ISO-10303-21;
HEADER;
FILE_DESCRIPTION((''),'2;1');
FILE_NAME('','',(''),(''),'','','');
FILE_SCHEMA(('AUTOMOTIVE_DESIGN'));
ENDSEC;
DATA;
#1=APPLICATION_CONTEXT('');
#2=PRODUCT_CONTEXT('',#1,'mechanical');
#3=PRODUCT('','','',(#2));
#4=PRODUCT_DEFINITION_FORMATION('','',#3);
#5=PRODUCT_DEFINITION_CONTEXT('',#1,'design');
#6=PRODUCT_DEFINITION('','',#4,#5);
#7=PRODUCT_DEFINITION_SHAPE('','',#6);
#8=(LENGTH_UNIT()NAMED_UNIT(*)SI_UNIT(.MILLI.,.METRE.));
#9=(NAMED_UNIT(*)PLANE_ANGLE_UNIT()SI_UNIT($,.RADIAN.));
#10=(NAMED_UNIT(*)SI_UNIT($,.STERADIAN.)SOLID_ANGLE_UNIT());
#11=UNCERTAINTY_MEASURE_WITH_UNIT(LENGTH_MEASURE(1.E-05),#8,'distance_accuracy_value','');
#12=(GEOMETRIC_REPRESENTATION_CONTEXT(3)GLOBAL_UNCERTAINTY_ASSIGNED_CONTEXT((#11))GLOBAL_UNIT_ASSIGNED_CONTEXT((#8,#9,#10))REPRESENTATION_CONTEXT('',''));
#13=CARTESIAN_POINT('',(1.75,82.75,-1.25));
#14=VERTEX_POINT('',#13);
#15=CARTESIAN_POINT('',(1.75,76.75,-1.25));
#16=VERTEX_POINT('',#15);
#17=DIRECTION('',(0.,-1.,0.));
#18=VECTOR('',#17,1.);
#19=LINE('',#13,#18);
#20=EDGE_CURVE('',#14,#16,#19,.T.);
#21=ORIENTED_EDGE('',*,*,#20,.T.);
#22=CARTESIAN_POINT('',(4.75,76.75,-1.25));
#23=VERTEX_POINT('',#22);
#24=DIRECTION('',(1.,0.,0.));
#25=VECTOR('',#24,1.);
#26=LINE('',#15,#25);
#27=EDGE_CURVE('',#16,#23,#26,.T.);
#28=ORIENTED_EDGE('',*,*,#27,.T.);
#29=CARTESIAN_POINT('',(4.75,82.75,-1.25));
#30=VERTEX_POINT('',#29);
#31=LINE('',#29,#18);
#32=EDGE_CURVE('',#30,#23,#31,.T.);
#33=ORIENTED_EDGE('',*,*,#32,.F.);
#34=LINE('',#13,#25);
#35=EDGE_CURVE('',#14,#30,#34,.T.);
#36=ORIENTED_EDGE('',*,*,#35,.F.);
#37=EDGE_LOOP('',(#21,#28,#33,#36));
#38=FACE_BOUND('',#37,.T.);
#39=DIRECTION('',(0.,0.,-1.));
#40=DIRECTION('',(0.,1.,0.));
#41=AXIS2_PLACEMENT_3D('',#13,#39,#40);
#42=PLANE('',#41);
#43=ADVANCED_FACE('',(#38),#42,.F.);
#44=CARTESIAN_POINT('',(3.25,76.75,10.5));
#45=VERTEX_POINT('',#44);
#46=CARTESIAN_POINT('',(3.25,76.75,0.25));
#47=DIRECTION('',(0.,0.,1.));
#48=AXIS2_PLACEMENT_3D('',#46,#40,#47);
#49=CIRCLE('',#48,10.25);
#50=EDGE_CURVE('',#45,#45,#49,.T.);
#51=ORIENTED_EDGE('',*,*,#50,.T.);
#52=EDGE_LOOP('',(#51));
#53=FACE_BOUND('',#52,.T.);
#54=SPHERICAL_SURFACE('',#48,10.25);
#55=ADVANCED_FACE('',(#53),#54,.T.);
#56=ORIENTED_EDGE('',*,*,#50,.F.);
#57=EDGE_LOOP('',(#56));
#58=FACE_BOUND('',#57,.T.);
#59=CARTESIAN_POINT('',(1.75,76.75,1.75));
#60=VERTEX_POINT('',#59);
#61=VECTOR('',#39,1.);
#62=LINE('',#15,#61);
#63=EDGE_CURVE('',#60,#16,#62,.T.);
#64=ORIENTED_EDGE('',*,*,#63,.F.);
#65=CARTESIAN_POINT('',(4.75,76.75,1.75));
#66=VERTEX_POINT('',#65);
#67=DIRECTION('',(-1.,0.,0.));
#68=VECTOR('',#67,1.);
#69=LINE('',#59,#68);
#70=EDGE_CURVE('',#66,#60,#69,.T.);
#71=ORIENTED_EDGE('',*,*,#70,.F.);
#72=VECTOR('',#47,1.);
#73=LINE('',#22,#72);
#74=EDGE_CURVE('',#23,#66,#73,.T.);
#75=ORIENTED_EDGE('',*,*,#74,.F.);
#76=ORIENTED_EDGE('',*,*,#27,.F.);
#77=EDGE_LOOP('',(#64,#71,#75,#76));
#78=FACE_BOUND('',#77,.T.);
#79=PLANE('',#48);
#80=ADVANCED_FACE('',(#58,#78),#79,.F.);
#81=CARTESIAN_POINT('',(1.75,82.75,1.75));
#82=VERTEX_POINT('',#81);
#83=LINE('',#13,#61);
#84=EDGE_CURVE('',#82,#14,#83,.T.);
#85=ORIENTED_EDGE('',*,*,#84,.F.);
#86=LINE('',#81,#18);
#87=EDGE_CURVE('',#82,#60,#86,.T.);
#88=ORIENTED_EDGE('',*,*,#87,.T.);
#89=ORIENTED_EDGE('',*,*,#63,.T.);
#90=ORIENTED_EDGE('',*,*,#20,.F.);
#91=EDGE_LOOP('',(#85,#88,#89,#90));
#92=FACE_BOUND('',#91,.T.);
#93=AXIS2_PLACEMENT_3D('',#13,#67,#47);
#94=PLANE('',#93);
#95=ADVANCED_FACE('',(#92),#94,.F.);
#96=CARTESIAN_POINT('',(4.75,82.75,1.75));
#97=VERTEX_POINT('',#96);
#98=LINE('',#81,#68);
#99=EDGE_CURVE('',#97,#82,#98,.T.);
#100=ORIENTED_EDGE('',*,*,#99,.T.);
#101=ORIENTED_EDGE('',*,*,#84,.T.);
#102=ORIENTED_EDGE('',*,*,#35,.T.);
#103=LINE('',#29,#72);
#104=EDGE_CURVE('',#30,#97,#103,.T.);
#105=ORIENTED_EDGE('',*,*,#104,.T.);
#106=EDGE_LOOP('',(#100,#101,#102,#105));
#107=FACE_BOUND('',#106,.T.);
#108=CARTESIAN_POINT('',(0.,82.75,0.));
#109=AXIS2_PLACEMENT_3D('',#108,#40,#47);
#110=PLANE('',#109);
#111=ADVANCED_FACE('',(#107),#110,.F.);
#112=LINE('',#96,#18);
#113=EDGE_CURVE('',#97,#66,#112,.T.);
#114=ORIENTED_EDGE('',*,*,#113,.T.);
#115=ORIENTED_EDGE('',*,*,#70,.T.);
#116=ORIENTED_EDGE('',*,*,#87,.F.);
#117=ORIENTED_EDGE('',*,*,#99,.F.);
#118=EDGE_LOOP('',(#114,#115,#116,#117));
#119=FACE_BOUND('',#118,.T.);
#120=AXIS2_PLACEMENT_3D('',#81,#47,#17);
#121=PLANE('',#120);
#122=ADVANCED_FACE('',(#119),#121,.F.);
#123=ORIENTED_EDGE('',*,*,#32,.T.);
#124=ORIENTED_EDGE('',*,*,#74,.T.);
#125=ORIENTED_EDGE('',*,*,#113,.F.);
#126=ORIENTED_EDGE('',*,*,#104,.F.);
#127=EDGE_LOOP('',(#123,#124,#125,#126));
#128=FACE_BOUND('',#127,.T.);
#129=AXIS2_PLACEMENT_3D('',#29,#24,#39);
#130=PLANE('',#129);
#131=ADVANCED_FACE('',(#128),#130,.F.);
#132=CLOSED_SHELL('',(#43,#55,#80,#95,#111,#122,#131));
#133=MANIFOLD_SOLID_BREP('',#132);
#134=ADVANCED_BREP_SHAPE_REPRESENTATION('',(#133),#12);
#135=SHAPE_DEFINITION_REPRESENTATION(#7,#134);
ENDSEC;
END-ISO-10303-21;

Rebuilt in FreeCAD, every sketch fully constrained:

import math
import FreeCAD as App
import Part
import Sketcher
from FreeCAD import Vector
Q = App.Units.Quantity


def add_polygon(sketch, points):
    """Adds a closed chain of lines whose ends are joined by coincident constraints."""
    first, n = sketch.GeometryCount, len(points)
    for a, b in zip(points, points[1:] + points[:1]):
        sketch.addGeometry(Part.LineSegment(App.Vector(*a, 0), App.Vector(*b, 0)), False)
    for i in range(n):
        sketch.addConstraint(Sketcher.Constraint("Coincident", first + i, 2, first + (i + 1) % n, 1))

doc = App.newDocument("Part")
params = doc.addObject("Spreadsheet::Sheet", "Params")
for row, (alias, value) in enumerate([
    ("sketch1_radius", "10.25 mm"),
    ("revolution_angle", "180 deg"),
    ("sketch2_width", "3 mm"),
    ("pocket1_length", "6 mm"),
], start=1):
    params.set(f"A{row}", alias)
    params.set(f"B{row}", "=" + value)
    params.setAlias(f"B{row}", alias)

body = doc.addObject("PartDesign::Body", "Body")

sketch1 = body.newObject("Sketcher::SketchObject", "Sketch")
sketch1.AttachmentSupport = (doc.getObject("XZ_Plane"), [""])
sketch1.MapMode = "FlatFace"
sketch1.AttachmentOffset = App.Placement(Vector(0, 0, -76.75), App.Rotation())
sketch1.addGeometry([
    Part.LineSegment(Vector(-7, 0, 0), Vector(14, 0, 0)),
    Part.ArcOfCircle(Part.Circle(Vector(3, 0, 0), Vector(0, 0, 1), 10), math.radians(0), math.radians(180)),
], False)
sketch1.addGeometry(Part.LineSegment(Vector(14, 0, 0), Vector(-7, 0, 0)), True)
sketch1.addConstraint([
    Sketcher.Constraint("Coincident", 0, 1, 1, 2),
    Sketcher.Constraint("Coincident", 1, 1, 0, 2),
    Sketcher.Constraint("Horizontal", 0),
    Sketcher.Constraint("Horizontal", 2),
    Sketcher.Constraint("Coincident", 2, 1, 1, 1),
    Sketcher.Constraint("Horizontal", 1, 3, 0, 1),
    Sketcher.Constraint("Equal", 0, 2),
    Sketcher.Constraint("Radius", 1, Q("10.25 mm")),
    Sketcher.Constraint("DistanceX", 0, 1, -1, 1, Q("7 mm")),
    Sketcher.Constraint("DistanceY", -1, 1, 1, 3, Q("0.25 mm")),
])
sketch1.setExpression("Constraints[7]", "Params.sketch1_radius")
revolution = body.newObject("PartDesign::Revolution", "Revolution")
revolution.Profile = sketch1
revolution.ReferenceAxis = (sketch1, ["Axis0"])
revolution.setExpression("Angle", "Params.revolution_angle")

sketch2 = body.newObject("Sketcher::SketchObject", "Sketch001")
sketch2.AttachmentSupport = (doc.getObject("XZ_Plane"), [""])
sketch2.MapMode = "FlatFace"
sketch2.AttachmentOffset = App.Placement(Vector(0, 0, -76.75), App.Rotation())
add_polygon(sketch2, [(1.8, 1.8), (1.8, -1.2), (4.8, -1.2), (4.8, 1.8)])
sketch2.addConstraint([
    Sketcher.Constraint("Vertical", 0),
    Sketcher.Constraint("Horizontal", 1),
    Sketcher.Constraint("Vertical", 2),
    Sketcher.Constraint("Horizontal", 3),
    Sketcher.Constraint("Equal", 3, 0),
    Sketcher.Constraint("DistanceX", 1, 1, 1, 2, Q("3 mm")),
    Sketcher.Constraint("DistanceX", -1, 1, 0, 2, Q("1.75 mm")),
    Sketcher.Constraint("DistanceY", 0, 2, -1, 1, Q("1.25 mm")),
])
sketch2.setExpression("Constraints[9]", "Params.sketch2_width")
pocket1 = body.newObject("PartDesign::Pocket", "Pocket")
pocket1.Profile = sketch2
pocket1.setExpression("Length", "Params.pocket1_length")

doc.recompute()
